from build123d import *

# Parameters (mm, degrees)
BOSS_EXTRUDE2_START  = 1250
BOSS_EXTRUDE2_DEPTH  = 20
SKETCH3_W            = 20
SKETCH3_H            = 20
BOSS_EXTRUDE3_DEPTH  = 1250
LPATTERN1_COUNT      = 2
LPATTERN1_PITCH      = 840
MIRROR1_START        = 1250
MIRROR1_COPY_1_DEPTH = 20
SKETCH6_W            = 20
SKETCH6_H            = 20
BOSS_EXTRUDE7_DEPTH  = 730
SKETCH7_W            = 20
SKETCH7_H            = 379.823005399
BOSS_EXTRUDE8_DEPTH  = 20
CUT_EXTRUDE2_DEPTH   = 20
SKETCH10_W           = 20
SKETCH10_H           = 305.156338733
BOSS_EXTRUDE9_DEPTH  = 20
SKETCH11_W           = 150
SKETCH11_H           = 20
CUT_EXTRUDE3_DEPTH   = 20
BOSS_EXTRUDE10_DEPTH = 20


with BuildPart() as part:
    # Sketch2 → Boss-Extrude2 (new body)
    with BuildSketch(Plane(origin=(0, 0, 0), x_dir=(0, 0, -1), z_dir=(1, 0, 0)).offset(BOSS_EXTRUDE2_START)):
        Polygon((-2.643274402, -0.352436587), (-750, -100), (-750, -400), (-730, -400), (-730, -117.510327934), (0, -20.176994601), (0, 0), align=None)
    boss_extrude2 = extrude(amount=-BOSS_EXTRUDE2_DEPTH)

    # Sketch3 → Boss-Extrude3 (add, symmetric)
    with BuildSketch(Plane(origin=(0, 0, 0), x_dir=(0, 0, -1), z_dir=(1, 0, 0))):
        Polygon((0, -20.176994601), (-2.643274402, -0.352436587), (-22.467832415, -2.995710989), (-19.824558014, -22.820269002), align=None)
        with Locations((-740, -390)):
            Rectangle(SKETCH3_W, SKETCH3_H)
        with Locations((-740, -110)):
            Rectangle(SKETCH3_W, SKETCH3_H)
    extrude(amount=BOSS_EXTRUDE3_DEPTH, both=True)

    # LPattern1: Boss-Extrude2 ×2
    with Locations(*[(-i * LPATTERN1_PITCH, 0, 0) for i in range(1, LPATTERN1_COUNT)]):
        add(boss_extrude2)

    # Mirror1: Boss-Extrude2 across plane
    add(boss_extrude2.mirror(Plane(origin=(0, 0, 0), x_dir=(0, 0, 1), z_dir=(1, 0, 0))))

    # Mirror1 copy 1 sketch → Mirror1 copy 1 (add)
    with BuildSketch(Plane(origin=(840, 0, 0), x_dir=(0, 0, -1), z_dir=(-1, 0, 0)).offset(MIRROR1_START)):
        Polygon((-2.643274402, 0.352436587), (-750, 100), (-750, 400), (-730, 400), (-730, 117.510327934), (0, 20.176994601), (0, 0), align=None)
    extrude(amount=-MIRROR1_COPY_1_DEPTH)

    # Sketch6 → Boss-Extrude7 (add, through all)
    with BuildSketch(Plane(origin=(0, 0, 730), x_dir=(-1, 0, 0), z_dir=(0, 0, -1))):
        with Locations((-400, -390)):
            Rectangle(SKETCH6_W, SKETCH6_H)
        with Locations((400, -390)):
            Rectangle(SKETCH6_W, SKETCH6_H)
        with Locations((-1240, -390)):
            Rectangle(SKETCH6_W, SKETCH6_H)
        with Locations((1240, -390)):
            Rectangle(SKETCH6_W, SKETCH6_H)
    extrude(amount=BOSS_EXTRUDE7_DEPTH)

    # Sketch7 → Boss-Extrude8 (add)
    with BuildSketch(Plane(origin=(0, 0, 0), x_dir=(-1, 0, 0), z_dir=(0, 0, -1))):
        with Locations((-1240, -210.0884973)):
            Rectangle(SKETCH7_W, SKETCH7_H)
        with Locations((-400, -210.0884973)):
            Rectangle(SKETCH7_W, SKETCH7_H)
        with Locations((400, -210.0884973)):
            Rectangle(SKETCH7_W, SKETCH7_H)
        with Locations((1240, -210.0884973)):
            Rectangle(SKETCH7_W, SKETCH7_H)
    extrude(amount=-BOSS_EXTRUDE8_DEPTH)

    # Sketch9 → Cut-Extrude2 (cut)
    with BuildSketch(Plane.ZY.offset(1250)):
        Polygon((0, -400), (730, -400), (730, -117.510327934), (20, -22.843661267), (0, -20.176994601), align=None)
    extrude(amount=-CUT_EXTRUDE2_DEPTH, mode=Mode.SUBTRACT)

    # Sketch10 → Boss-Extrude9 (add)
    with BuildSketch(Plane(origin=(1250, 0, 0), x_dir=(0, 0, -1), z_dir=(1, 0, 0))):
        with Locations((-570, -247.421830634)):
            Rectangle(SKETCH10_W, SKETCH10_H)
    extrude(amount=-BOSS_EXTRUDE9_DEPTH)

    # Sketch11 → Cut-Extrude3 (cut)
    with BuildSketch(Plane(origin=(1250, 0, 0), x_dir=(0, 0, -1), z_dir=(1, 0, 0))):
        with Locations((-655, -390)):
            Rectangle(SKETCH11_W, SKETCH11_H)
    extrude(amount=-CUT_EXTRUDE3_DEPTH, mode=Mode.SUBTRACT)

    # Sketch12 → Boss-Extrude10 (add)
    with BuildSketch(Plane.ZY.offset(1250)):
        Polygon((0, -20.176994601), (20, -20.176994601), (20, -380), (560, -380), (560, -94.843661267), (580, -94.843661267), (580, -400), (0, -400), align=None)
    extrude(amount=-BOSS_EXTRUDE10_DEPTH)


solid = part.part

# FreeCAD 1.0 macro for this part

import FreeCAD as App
import Part
import Sketcher

V = App.Vector


def add_polygon(sketch, points):
    """Adds a closed chain of lines whose ends are joined by coincident constraints."""
    first, n = sketch.GeometryCount, len(points)
    for a, b in zip(points, points[1:] + points[:1]):
        sketch.addGeometry(Part.LineSegment(App.Vector(*a, 0), App.Vector(*b, 0)), False)
    for i in range(n):
        sketch.addConstraint(Sketcher.Constraint("Coincident", first + i, 2, first + (i + 1) % n, 1))

doc = App.newDocument("Part")
body = doc.addObject("PartDesign::Body", "Body")

sketch1 = body.newObject("Sketcher::SketchObject", "Sketch")
sketch1.AttachmentSupport = (doc.getObject("YZ_Plane"), [""])
sketch1.MapMode = "FlatFace"
sketch1.AttachmentOffset = App.Placement(V(0, 0, 1250), App.Rotation())
add_polygon(sketch1, [(-0.352437, 2.643274), (-100, 750), (-400, 750), (-400, 730), (-117.510328, 730), (-20.176995, 0), (0, 0)])
sketch1.addConstraint([
    Sketcher.Constraint("Horizontal", 1),
    Sketcher.Constraint("Vertical", 2),
    Sketcher.Constraint("Horizontal", 3),
    Sketcher.Constraint("Horizontal", 5),
    Sketcher.Constraint("Coincident", 5, 2, -1, 1),
    Sketcher.Constraint("Parallel", 0, 4),
    Sketcher.Constraint("Parallel", 4, 6),
    Sketcher.Constraint("DistanceX", 1, 2, 1, 1, 300.0),
    Sketcher.Constraint("DistanceY", 2, 2, 2, 1, 20.0),
    Sketcher.Constraint("DistanceX", 0, 2, -1, 1, 100.0),
    Sketcher.Constraint("DistanceY", -1, 1, 0, 2, 750.0),
    Sketcher.Constraint("Distance", 0, 753.970631),
    Sketcher.Constraint("DistanceX", 3, 1, 3, 2, 282.489672),
])
pad1 = body.newObject("PartDesign::Pad", "Pad")
pad1.Profile = sketch1
pad1.Length = 20
pad1.Reversed = True

sketch2 = body.newObject("Sketcher::SketchObject", "Sketch001")
sketch2.AttachmentSupport = (doc.getObject("YZ_Plane"), [""])
sketch2.MapMode = "FlatFace"
add_polygon(sketch2, [(-20.176995, 0), (-0.352437, 2.643274), (-2.995711, 22.467832), (-22.820269, 19.824558)])
add_polygon(sketch2, [(-380, 750), (-400, 750), (-400, 730), (-380, 730)])
add_polygon(sketch2, [(-100, 750), (-120, 750), (-120, 730), (-100, 730)])
sketch2.addConstraint([
    Sketcher.Constraint("Horizontal", 4),
    Sketcher.Constraint("Vertical", 5),
    Sketcher.Constraint("Horizontal", 6),
    Sketcher.Constraint("Vertical", 7),
    Sketcher.Constraint("Horizontal", 8),
    Sketcher.Constraint("Vertical", 9),
    Sketcher.Constraint("Horizontal", 10),
    Sketcher.Constraint("Vertical", 11),
    Sketcher.Constraint("PointOnObject", 3, 2, -1),
    Sketcher.Constraint("Perpendicular", 0, 1),
    Sketcher.Constraint("Perpendicular", 1, 2),
    Sketcher.Constraint("Perpendicular", 2, 3),
    Sketcher.Constraint("Horizontal", 7, 2, 8, 2),
    Sketcher.Constraint("Horizontal", 6, 2, 9, 2),
    Sketcher.Constraint("Equal", 6, 8),
    Sketcher.Constraint("Equal", 10, 5),
    Sketcher.Constraint("Equal", 0, 1),
    Sketcher.Constraint("DistanceX", 4, 2, 4, 1, 20.0),
    Sketcher.Constraint("Distance", 0, 20.0),
    Sketcher.Constraint("DistanceX", 4, 2, -1, 1, 400.0),
    Sketcher.Constraint("DistanceY", -1, 1, 4, 2, 750.0),
    Sketcher.Constraint("DistanceX", 8, 2, -1, 1, 120.0),
    Sketcher.Constraint("DistanceX", 1, 2, -1, 1, 2.995711),
    Sketcher.Constraint("DistanceX", 2, 2, -1, 1, 22.820269),
])
pad2 = body.newObject("PartDesign::Pad", "Pad001")
pad2.Profile = sketch2
pad2.Length = 2500
pad2.Midplane = True
doc.recompute()

linearpattern = body.newObject("PartDesign::LinearPattern", "LinearPattern")
linearpattern.Originals = [pad1]
linearpattern.Direction = (doc.getObject("X_Axis"), [""])
linearpattern.Mode = "offset"
linearpattern.Offset = 840
linearpattern.Occurrences = 2
linearpattern.Reversed = True
body.Tip = linearpattern
doc.recompute()

mirrored = body.newObject("PartDesign::Mirrored", "Mirrored")
mirrored.Originals = [pad1]
mirrored.MirrorPlane = (doc.getObject("YZ_Plane"), [""])
body.Tip = mirrored

sketch3 = body.newObject("Sketcher::SketchObject", "Sketch002")
sketch3.AttachmentSupport = (doc.getObject("YZ_Plane"), [""])
sketch3.MapMode = "FlatFace"
sketch3.AttachmentOffset = App.Placement(V(0, 0, -410), App.Rotation())
add_polygon(sketch3, [(-100, 750), (-0.352437, 2.643274), (0, 0), (-20.176995, 0), (-117.510328, 730), (-400, 730), (-400, 750)])
sketch3.addConstraint([
    Sketcher.Constraint("Horizontal", 2),
    Sketcher.Constraint("Horizontal", 4),
    Sketcher.Constraint("Vertical", 5),
    Sketcher.Constraint("Horizontal", 6),
    Sketcher.Constraint("Coincident", 1, 2, -1, 1),
    Sketcher.Constraint("Parallel", 0, 1),
    Sketcher.Constraint("Parallel", 1, 3),
    Sketcher.Constraint("DistanceX", 6, 1, 6, 2, 300.0),
    Sketcher.Constraint("DistanceY", 5, 1, 5, 2, 20.0),
    Sketcher.Constraint("DistanceY", -1, 1, 3, 2, 730.0),
    Sketcher.Constraint("DistanceX", 4, 2, -1, 1, 400.0),
    Sketcher.Constraint("Distance", 0, 753.970631),
    Sketcher.Constraint("DistanceX", 2, 2, 2, 1, 20.176995),
])
pad3 = body.newObject("PartDesign::Pad", "Pad002")
pad3.Profile = sketch3
pad3.Length = 20

sketch4 = body.newObject("Sketcher::SketchObject", "Sketch003")
sketch4.AttachmentSupport = (doc.getObject("XY_Plane"), [""])
sketch4.MapMode = "FlatFace"
sketch4.AttachmentOffset = App.Placement(V(0, 0, 730), App.Rotation())
add_polygon(sketch4, [(410, -380), (410, -400), (390, -400), (390, -380)])
add_polygon(sketch4, [(-390, -380), (-390, -400), (-410, -400), (-410, -380)])
add_polygon(sketch4, [(1250, -380), (1250, -400), (1230, -400), (1230, -380)])
add_polygon(sketch4, [(-1230, -380), (-1230, -400), (-1250, -400), (-1250, -380)])
sketch4.addConstraint([
    Sketcher.Constraint("Vertical", 0),
    Sketcher.Constraint("Horizontal", 1),
    Sketcher.Constraint("Vertical", 2),
    Sketcher.Constraint("Horizontal", 3),
    Sketcher.Constraint("Vertical", 4),
    Sketcher.Constraint("Horizontal", 5),
    Sketcher.Constraint("Vertical", 6),
    Sketcher.Constraint("Horizontal", 7),
    Sketcher.Constraint("Vertical", 8),
    Sketcher.Constraint("Horizontal", 9),
    Sketcher.Constraint("Vertical", 10),
    Sketcher.Constraint("Horizontal", 11),
    Sketcher.Constraint("Vertical", 12),
    Sketcher.Constraint("Horizontal", 13),
    Sketcher.Constraint("Vertical", 14),
    Sketcher.Constraint("Horizontal", 15),
    Sketcher.Constraint("Symmetric", 1, 2, 4, 2, -2),
    Sketcher.Constraint("Symmetric", 3, 2, 6, 2, -2),
    Sketcher.Constraint("Symmetric", 9, 2, 12, 2, -2),
    Sketcher.Constraint("Symmetric", 11, 2, 14, 2, -2),
    Sketcher.Constraint("Horizontal", 5, 2, 8, 2),
    Sketcher.Constraint("Horizontal", 7, 2, 10, 2),
    Sketcher.Constraint("Equal", 7, 9),
    Sketcher.Constraint("Equal", 15, 0),
    Sketcher.Constraint("DistanceX", 1, 2, 1, 1, 20.0),
    Sketcher.Constraint("DistanceX", -1, 1, 0, 2, 410.0),
    Sketcher.Constraint("DistanceY", 0, 2, -1, 1, 400.0),
    Sketcher.Constraint("DistanceX", -1, 1, 8, 2, 1250.0),
])
pad4 = body.newObject("PartDesign::Pad", "Pad003")
pad4.Profile = sketch4
pad4.Length = 730
pad4.Reversed = True

sketch5 = body.newObject("Sketcher::SketchObject", "Sketch004")
sketch5.AttachmentSupport = (doc.getObject("XY_Plane"), [""])
sketch5.MapMode = "FlatFace"
add_polygon(sketch5, [(1250, -20.176995), (1250, -400), (1230, -400), (1230, -20.176995)])
add_polygon(sketch5, [(410, -20.176995), (410, -400), (390, -400), (390, -20.176995)])
add_polygon(sketch5, [(-390, -20.176995), (-390, -400), (-410, -400), (-410, -20.176995)])
add_polygon(sketch5, [(-1230, -20.176995), (-1230, -400), (-1250, -400), (-1250, -20.176995)])
sketch5.addConstraint([
    Sketcher.Constraint("Vertical", 0),
    Sketcher.Constraint("Horizontal", 1),
    Sketcher.Constraint("Vertical", 2),
    Sketcher.Constraint("Horizontal", 3),
    Sketcher.Constraint("Vertical", 4),
    Sketcher.Constraint("Horizontal", 5),
    Sketcher.Constraint("Vertical", 6),
    Sketcher.Constraint("Horizontal", 7),
    Sketcher.Constraint("Vertical", 8),
    Sketcher.Constraint("Horizontal", 9),
    Sketcher.Constraint("Vertical", 10),
    Sketcher.Constraint("Horizontal", 11),
    Sketcher.Constraint("Vertical", 12),
    Sketcher.Constraint("Horizontal", 13),
    Sketcher.Constraint("Vertical", 14),
    Sketcher.Constraint("Horizontal", 15),
    Sketcher.Constraint("Symmetric", 5, 2, 8, 2, -2),
    Sketcher.Constraint("Symmetric", 7, 2, 10, 2, -2),
    Sketcher.Constraint("Symmetric", 1, 2, 12, 2, -2),
    Sketcher.Constraint("Symmetric", 3, 2, 14, 2, -2),
    Sketcher.Constraint("Horizontal", 1, 2, 4, 2),
    Sketcher.Constraint("Horizontal", 3, 2, 6, 2),
    Sketcher.Constraint("Equal", 3, 5),
    Sketcher.Constraint("DistanceX", 1, 2, 1, 1, 20.0),
    Sketcher.Constraint("DistanceX", -1, 1, 0, 2, 1250.0),
    Sketcher.Constraint("DistanceY", 0, 2, -1, 1, 400.0),
    Sketcher.Constraint("DistanceX", -1, 1, 4, 2, 410.0),
    Sketcher.Constraint("DistanceY", 0, 2, 0, 1, 379.823005),
])
pad5 = body.newObject("PartDesign::Pad", "Pad004")
pad5.Profile = sketch5
pad5.Length = 20

sketch6 = body.newObject("Sketcher::SketchObject", "Sketch005")
sketch6.AttachmentSupport = (doc.getObject("YZ_Plane"), [""])
sketch6.MapMode = "FlatFace"
sketch6.AttachmentOffset = App.Placement(V(0, 0, -1250), App.Rotation())
add_polygon(sketch6, [(-400, 0), (-400, 730), (-117.510328, 730), (-22.843661, 20), (-20.176995, 0)])
sketch6.addConstraint([
    Sketcher.Constraint("Vertical", 0),
    Sketcher.Constraint("Horizontal", 1),
    Sketcher.Constraint("Horizontal", 4),
    Sketcher.Constraint("PointOnObject", 3, 2, -1),
    Sketcher.Constraint("Parallel", 2, 3),
    Sketcher.Constraint("DistanceY", 0, 1, 0, 2, 730.0),
    Sketcher.Constraint("DistanceX", 0, 2, -1, 1, 400.0),
    Sketcher.Constraint("DistanceY", -1, 1, 2, 2, 20.0),
    Sketcher.Constraint("Distance", 2, 716.283308),
    Sketcher.Constraint("DistanceX", 1, 1, 1, 2, 282.489672),
])
pocket1 = body.newObject("PartDesign::Pocket", "Pocket")
pocket1.Profile = sketch6
pocket1.Length = 20
pocket1.Reversed = True

sketch7 = body.newObject("Sketcher::SketchObject", "Sketch006")
sketch7.AttachmentSupport = (doc.getObject("YZ_Plane"), [""])
sketch7.MapMode = "FlatFace"
sketch7.AttachmentOffset = App.Placement(V(0, 0, 1250), App.Rotation())
add_polygon(sketch7, [(-94.843661, 580), (-400, 580), (-400, 560), (-94.843661, 560)])
sketch7.addConstraint([
    Sketcher.Constraint("Horizontal", 0),
    Sketcher.Constraint("Vertical", 1),
    Sketcher.Constraint("Horizontal", 2),
    Sketcher.Constraint("Vertical", 3),
    Sketcher.Constraint("DistanceY", 1, 2, 1, 1, 20.0),
    Sketcher.Constraint("DistanceX", 0, 2, -1, 1, 400.0),
    Sketcher.Constraint("DistanceY", -1, 1, 0, 2, 580.0),
    Sketcher.Constraint("DistanceX", 0, 2, 0, 1, 305.156339),
])
pad6 = body.newObject("PartDesign::Pad", "Pad005")
pad6.Profile = sketch7
pad6.Length = 20
pad6.Reversed = True

sketch8 = body.newObject("Sketcher::SketchObject", "Sketch007")
sketch8.AttachmentSupport = (doc.getObject("YZ_Plane"), [""])
sketch8.MapMode = "FlatFace"
sketch8.AttachmentOffset = App.Placement(V(0, 0, 1250), App.Rotation())
add_polygon(sketch8, [(-380, 730), (-400, 730), (-400, 580), (-380, 580)])
sketch8.addConstraint([
    Sketcher.Constraint("Horizontal", 0),
    Sketcher.Constraint("Vertical", 1),
    Sketcher.Constraint("Horizontal", 2),
    Sketcher.Constraint("Vertical", 3),
    Sketcher.Constraint("DistanceX", 0, 2, 0, 1, 20.0),
    Sketcher.Constraint("DistanceY", 1, 2, 1, 1, 150.0),
    Sketcher.Constraint("DistanceX", 0, 2, -1, 1, 400.0),
    Sketcher.Constraint("DistanceY", -1, 1, 0, 2, 730.0),
])
pocket2 = body.newObject("PartDesign::Pocket", "Pocket001")
pocket2.Profile = sketch8
pocket2.Length = 20

sketch9 = body.newObject("Sketcher::SketchObject", "Sketch008")
sketch9.AttachmentSupport = (doc.getObject("YZ_Plane"), [""])
sketch9.MapMode = "FlatFace"
sketch9.AttachmentOffset = App.Placement(V(0, 0, -1250), App.Rotation())
add_polygon(sketch9, [(-20.176995, 20), (-20.176995, 0), (-400, 0), (-400, 580), (-94.843661, 580), (-94.843661, 560), (-380, 560), (-380, 20)])
sketch9.addConstraint([
    Sketcher.Constraint("Vertical", 0),
    Sketcher.Constraint("Horizontal", 1),
    Sketcher.Constraint("Vertical", 2),
    Sketcher.Constraint("Horizontal", 3),
    Sketcher.Constraint("Vertical", 4),
    Sketcher.Constraint("Horizontal", 5),
    Sketcher.Constraint("Vertical", 6),
    Sketcher.Constraint("Horizontal", 7),
    Sketcher.Constraint("PointOnObject", 0, 2, -1),
    Sketcher.Constraint("Equal", 0, 4),
    Sketcher.Constraint("DistanceY", 0, 2, 0, 1, 20.0),
    Sketcher.Constraint("DistanceY", 2, 1, 2, 2, 580.0),
    Sketcher.Constraint("DistanceX", 1, 2, -1, 1, 400.0),
    Sketcher.Constraint("DistanceX", 5, 2, -1, 1, 380.0),
    Sketcher.Constraint("DistanceX", 3, 1, 3, 2, 305.156339),
    Sketcher.Constraint("DistanceX", 1, 2, 1, 1, 379.823005),
])
pad7 = body.newObject("PartDesign::Pad", "Pad006")
pad7.Profile = sketch9
pad7.Length = 20

doc.recompute()
